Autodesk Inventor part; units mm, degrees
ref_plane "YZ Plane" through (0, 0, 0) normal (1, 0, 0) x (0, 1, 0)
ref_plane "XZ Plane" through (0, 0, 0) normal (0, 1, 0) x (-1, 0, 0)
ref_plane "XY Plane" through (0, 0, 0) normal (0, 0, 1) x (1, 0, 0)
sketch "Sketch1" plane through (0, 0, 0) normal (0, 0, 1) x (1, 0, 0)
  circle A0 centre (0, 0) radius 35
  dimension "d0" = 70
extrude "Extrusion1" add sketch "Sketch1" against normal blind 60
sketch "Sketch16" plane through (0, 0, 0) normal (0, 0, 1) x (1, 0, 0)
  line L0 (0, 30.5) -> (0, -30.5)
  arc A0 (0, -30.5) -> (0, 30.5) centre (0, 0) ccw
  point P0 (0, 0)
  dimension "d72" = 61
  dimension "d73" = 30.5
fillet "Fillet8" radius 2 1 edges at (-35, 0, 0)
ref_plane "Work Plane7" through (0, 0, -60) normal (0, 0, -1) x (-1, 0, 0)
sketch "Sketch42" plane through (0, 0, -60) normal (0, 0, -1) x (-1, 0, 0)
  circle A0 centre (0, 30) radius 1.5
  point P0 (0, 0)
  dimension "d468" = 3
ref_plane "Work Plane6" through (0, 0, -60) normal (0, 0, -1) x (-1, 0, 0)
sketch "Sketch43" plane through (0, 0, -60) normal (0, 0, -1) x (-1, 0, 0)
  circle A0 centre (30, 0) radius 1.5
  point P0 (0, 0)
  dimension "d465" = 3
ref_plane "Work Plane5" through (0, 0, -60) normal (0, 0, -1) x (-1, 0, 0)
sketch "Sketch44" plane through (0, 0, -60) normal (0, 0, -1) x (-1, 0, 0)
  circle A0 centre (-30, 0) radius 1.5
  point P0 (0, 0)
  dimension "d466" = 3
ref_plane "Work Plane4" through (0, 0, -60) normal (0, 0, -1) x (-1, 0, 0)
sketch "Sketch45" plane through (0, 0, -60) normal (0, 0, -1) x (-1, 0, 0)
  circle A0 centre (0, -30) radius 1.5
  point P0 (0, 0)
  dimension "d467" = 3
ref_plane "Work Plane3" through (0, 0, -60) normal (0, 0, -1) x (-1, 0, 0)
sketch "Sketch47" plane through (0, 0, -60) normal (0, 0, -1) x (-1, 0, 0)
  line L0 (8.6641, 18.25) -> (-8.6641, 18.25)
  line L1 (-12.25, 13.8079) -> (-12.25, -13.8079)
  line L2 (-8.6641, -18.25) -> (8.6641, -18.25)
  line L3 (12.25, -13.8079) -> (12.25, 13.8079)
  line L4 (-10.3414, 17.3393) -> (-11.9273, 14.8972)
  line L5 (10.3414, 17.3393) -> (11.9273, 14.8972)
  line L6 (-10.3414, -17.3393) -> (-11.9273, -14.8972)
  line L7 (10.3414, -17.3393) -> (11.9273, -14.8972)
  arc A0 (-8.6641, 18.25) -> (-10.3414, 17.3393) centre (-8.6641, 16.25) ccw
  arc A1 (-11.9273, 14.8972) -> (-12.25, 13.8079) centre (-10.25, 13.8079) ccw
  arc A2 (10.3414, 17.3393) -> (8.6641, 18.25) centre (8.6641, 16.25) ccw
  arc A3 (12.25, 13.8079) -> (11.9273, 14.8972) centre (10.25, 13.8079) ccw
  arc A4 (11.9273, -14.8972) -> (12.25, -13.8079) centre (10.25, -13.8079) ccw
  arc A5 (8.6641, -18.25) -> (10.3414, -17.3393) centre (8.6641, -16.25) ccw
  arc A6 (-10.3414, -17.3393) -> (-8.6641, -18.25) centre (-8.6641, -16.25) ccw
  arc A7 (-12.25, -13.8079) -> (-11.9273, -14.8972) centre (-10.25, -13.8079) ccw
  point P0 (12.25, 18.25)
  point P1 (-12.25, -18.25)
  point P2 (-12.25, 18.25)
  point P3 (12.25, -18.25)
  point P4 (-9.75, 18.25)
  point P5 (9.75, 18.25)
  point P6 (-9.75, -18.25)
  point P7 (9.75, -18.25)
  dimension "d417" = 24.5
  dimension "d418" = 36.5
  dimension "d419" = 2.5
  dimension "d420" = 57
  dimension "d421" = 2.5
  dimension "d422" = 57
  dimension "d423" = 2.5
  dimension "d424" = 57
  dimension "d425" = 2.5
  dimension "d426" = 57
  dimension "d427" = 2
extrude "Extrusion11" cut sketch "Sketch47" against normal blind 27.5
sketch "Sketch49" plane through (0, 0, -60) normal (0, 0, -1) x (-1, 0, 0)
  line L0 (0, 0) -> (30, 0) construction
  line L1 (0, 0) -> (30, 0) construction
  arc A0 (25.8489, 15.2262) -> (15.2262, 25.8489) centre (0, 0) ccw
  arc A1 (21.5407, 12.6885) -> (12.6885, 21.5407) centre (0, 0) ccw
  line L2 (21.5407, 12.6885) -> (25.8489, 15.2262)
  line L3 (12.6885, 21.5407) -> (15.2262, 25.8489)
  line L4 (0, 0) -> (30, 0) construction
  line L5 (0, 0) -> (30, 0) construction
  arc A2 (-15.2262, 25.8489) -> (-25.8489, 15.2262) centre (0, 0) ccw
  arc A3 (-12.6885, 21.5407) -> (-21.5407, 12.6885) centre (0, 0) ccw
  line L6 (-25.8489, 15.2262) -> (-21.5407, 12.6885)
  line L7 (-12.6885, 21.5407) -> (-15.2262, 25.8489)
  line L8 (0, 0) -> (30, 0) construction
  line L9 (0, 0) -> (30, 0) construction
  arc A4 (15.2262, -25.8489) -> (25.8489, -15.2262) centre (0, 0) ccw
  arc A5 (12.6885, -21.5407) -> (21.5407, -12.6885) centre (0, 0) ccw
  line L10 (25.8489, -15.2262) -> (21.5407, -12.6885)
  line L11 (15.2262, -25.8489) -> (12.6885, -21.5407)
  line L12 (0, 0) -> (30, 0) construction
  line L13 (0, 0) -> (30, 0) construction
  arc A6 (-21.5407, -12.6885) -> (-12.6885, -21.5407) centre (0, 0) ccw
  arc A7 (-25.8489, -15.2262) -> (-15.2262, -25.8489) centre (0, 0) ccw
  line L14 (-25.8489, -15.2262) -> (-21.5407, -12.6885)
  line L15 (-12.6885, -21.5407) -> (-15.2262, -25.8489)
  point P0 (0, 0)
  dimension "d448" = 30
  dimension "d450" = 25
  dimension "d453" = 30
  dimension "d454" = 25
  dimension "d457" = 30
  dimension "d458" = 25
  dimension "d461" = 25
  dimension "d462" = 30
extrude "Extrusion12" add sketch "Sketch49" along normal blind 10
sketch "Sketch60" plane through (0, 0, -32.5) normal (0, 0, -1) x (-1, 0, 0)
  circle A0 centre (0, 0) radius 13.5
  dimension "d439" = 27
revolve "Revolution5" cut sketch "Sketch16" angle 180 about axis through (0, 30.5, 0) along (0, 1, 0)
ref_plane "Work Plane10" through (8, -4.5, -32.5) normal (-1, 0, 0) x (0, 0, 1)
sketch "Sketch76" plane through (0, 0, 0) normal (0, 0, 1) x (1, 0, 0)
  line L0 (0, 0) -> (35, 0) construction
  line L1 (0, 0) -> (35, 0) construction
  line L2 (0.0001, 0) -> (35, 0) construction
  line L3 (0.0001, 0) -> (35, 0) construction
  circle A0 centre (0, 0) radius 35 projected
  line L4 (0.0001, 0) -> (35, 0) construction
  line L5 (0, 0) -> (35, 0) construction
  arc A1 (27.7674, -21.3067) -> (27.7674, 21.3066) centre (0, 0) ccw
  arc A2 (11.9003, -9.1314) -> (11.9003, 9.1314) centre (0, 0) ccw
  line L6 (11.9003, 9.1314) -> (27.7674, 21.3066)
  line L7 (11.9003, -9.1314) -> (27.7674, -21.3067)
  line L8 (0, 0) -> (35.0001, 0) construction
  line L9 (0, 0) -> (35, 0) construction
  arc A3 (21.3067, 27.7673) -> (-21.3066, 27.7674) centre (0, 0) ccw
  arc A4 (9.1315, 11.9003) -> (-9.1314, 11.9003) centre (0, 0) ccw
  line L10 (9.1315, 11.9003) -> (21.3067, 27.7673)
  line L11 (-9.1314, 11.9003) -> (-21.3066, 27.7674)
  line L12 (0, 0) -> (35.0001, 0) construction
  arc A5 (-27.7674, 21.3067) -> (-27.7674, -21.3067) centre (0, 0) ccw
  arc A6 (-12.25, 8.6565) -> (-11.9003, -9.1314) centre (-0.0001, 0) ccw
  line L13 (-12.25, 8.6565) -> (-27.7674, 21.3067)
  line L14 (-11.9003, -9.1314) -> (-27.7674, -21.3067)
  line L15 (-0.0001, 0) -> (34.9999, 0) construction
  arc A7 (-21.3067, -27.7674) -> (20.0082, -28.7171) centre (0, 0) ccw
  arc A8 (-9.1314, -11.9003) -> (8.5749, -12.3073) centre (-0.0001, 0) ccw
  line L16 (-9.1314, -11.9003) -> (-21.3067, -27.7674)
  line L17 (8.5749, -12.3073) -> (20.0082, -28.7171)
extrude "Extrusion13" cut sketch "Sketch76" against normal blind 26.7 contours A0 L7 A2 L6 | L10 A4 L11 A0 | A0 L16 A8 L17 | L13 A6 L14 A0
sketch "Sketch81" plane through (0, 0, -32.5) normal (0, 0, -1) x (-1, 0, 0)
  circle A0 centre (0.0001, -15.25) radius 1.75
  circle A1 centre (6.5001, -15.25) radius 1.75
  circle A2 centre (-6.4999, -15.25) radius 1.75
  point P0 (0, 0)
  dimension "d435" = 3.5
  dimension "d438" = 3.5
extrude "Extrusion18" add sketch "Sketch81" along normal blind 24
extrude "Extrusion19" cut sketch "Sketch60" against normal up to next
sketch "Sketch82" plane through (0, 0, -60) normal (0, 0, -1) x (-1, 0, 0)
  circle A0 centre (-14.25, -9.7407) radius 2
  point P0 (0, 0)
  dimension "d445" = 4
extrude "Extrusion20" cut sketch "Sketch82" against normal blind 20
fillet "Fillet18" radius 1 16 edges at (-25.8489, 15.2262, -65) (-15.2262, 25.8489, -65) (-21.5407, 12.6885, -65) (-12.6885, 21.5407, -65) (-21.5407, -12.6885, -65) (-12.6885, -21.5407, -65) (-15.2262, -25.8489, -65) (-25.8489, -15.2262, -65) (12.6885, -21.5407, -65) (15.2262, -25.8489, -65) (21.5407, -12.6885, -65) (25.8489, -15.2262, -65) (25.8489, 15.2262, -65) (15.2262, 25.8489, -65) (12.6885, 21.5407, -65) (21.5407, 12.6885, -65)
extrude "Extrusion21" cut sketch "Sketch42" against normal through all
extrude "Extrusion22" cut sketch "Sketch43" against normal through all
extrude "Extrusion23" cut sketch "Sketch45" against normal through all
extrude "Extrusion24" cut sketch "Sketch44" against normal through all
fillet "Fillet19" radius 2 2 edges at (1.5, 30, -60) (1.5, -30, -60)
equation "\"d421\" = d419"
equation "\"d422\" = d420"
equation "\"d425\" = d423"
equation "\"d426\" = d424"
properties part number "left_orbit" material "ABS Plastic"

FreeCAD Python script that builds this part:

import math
import FreeCAD as App
import Part
import Sketcher

V = App.Vector
Q = App.Units.Quantity


def edges_at(feature, points):
    """Names of the edges that pass closest to the given points."""
    edges = feature.Shape.Edges
    near = lambda p: min(range(len(edges)), key=lambda i: edges[i].distToShape(Part.Vertex(*p))[0])
    return sorted({f"Edge{near(p) + 1}" for p in points})

doc = App.newDocument("Part")
body = doc.addObject("PartDesign::Body", "Body")

sketch1 = body.newObject("Sketcher::SketchObject", "Sketch")
sketch1.AttachmentSupport = (doc.getObject("XY_Plane"), [""])
sketch1.MapMode = "FlatFace"
sketch1.addGeometry(Part.Circle(V(0, 0, 0), V(0, 0, 1), 35), False)
sketch1.addConstraint(Sketcher.Constraint("Coincident", 0, 3, -1, 1))
sketch1.addConstraint(Sketcher.Constraint("Diameter", 0, Q("70 mm")))
pad1 = body.newObject("PartDesign::Pad", "Pad")
pad1.Profile = sketch1
pad1.Length = 60
pad1.Reversed = True
doc.recompute()

fillet = body.newObject("PartDesign::Fillet", "Fillet")
fillet.Base = (pad1, edges_at(pad1, [(-35, 0, 0)]))
fillet.Radius = 2

sketch2 = body.newObject("Sketcher::SketchObject", "Sketch001")
sketch2.AttachmentSupport = (doc.getObject("XY_Plane"), [""])
sketch2.MapMode = "FlatFace"
sketch2.AttachmentOffset = App.Placement(V(0, 0, -60), App.Rotation())
sketch2.addGeometry(Part.ArcOfCircle(Part.Circle(V(-8.7, 16.2, 0), V(0, 0, 1), 2), math.radians(90), math.radians(147)), False)
sketch2.addGeometry(Part.LineSegment(V(-8.7, 18.2, 0), V(8.7, 18.2, 0)), False)
sketch2.addGeometry(Part.ArcOfCircle(Part.Circle(V(8.7, 16.2, 0), V(0, 0, 1), 2), math.radians(33), math.radians(90)), False)
sketch2.addGeometry(Part.LineSegment(V(10.3, 17.3, 0), V(11.9, 14.9, 0)), False)
sketch2.addGeometry(Part.ArcOfCircle(Part.Circle(V(10.2, 13.8, 0), V(0, 0, 1), 2), math.radians(0), math.radians(33)), False)
sketch2.addGeometry(Part.LineSegment(V(12.2, 13.8, 0), V(12.2, -13.8, 0)), False)
sketch2.addGeometry(Part.ArcOfCircle(Part.Circle(V(10.2, -13.8, 0), V(0, 0, 1), 2), math.radians(-33), math.radians(0)), False)
sketch2.addGeometry(Part.LineSegment(V(11.9, -14.9, 0), V(10.3, -17.3, 0)), False)
sketch2.addGeometry(Part.ArcOfCircle(Part.Circle(V(8.7, -16.2, 0), V(0, 0, 1), 2), math.radians(-90), math.radians(-33)), False)
sketch2.addGeometry(Part.LineSegment(V(8.7, -18.2, 0), V(-8.7, -18.2, 0)), False)
sketch2.addGeometry(Part.ArcOfCircle(Part.Circle(V(-8.7, -16.2, 0), V(0, 0, 1), 2), math.radians(-147), math.radians(-90)), False)
sketch2.addGeometry(Part.LineSegment(V(-10.3, -17.3, 0), V(-11.9, -14.9, 0)), False)
sketch2.addGeometry(Part.ArcOfCircle(Part.Circle(V(-10.2, -13.8, 0), V(0, 0, 1), 2), math.radians(180), math.radians(213)), False)
sketch2.addGeometry(Part.LineSegment(V(-12.2, -13.8, 0), V(-12.2, 13.8, 0)), False)
sketch2.addGeometry(Part.ArcOfCircle(Part.Circle(V(-10.2, 13.8, 0), V(0, 0, 1), 2), math.radians(147), math.radians(180)), False)
sketch2.addGeometry(Part.LineSegment(V(-11.9, 14.9, 0), V(-10.3, 17.3, 0)), False)
sketch2.addConstraint(Sketcher.Constraint("Tangent", 0, 1, 1, 1))
sketch2.addConstraint(Sketcher.Constraint("Tangent", 1, 2, 2, 2))
sketch2.addConstraint(Sketcher.Constraint("Tangent", 2, 1, 3, 1))
sketch2.addConstraint(Sketcher.Constraint("Tangent", 3, 2, 4, 2))
sketch2.addConstraint(Sketcher.Constraint("Tangent", 4, 1, 5, 1))
sketch2.addConstraint(Sketcher.Constraint("Tangent", 5, 2, 6, 2))
sketch2.addConstraint(Sketcher.Constraint("Tangent", 6, 1, 7, 1))
sketch2.addConstraint(Sketcher.Constraint("Tangent", 7, 2, 8, 2))
sketch2.addConstraint(Sketcher.Constraint("Tangent", 8, 1, 9, 1))
sketch2.addConstraint(Sketcher.Constraint("Tangent", 9, 2, 10, 2))
sketch2.addConstraint(Sketcher.Constraint("Tangent", 10, 1, 11, 1))
sketch2.addConstraint(Sketcher.Constraint("Tangent", 11, 2, 12, 2))
sketch2.addConstraint(Sketcher.Constraint("Tangent", 12, 1, 13, 1))
sketch2.addConstraint(Sketcher.Constraint("Tangent", 13, 2, 14, 2))
sketch2.addConstraint(Sketcher.Constraint("Tangent", 14, 1, 15, 1))
sketch2.addConstraint(Sketcher.Constraint("Tangent", 15, 2, 0, 2))
sketch2.addConstraint(Sketcher.Constraint("Horizontal", 1))
sketch2.addConstraint(Sketcher.Constraint("Vertical", 5))
sketch2.addConstraint(Sketcher.Constraint("Horizontal", 9))
sketch2.addConstraint(Sketcher.Constraint("Vertical", 13))
sketch2.addConstraint(Sketcher.Constraint("Equal", 0, 2))
sketch2.addConstraint(Sketcher.Constraint("Equal", 2, 4))
sketch2.addConstraint(Sketcher.Constraint("Equal", 4, 6))
sketch2.addConstraint(Sketcher.Constraint("Equal", 6, 8))
sketch2.addConstraint(Sketcher.Constraint("Equal", 8, 10))
sketch2.addConstraint(Sketcher.Constraint("Equal", 10, 12))
sketch2.addConstraint(Sketcher.Constraint("Equal", 12, 14))
sketch2.addConstraint(Sketcher.Constraint("Symmetric", 0, 3, 8, 3, -1, 1))
sketch2.addConstraint(Sketcher.Constraint("Symmetric", 4, 3, 12, 3, -1, 1))
sketch2.addConstraint(Sketcher.Constraint("Symmetric", 7, 2, 10, 1, -2))
sketch2.addConstraint(Sketcher.Constraint("Symmetric", 3, 2, 14, 1, -2))
sketch2.addConstraint(Sketcher.Constraint("Radius", 0, Q("2 mm")))
sketch2.addConstraint(Sketcher.Constraint("Angle", 3, Q("-57.0003 deg")))
sketch2.addConstraint(Sketcher.Constraint("DistanceY", 8, 3, 2, 3, Q("32.5 mm")))
sketch2.addConstraint(Sketcher.Constraint("DistanceX", 12, 3, 6, 3, Q("20.5 mm")))
sketch2.addConstraint(Sketcher.Constraint("DistanceX", 1, 1, 1, 2, Q("17.3282 mm")))
pocket1 = body.newObject("PartDesign::Pocket", "Pocket")
pocket1.Profile = sketch2
pocket1.Length = 27.5
pocket1.Reversed = True

sketch3 = body.newObject("Sketcher::SketchObject", "Sketch002")
sketch3.AttachmentSupport = (doc.getObject("XY_Plane"), [""])
sketch3.MapMode = "FlatFace"
sketch3.AttachmentOffset = App.Placement(V(0, 0, -60), App.Rotation())
sketch3.addGeometry(Part.LineSegment(V(-22, 13, 0), V(-26, 15, 0)), False)
sketch3.addGeometry(Part.ArcOfCircle(Part.Circle(V(0, 0, 0), V(0, 0, 1), 30), math.radians(121), math.radians(149)), False)
sketch3.addGeometry(Part.LineSegment(V(-15, 26, 0), V(-13, 22, 0)), False)
sketch3.addGeometry(Part.ArcOfCircle(Part.Circle(V(0, 0, 0), V(0, 0, 1), 25), math.radians(121), math.radians(149)), False)
sketch3.addGeometry(Part.LineSegment(V(13, 22, 0), V(15, 26, 0)), False)
sketch3.addGeometry(Part.ArcOfCircle(Part.Circle(V(0, 0, 0), V(0, 0, 1), 30), math.radians(31), math.radians(59)), False)
sketch3.addGeometry(Part.LineSegment(V(26, 15, 0), V(22, 13, 0)), False)
sketch3.addGeometry(Part.ArcOfCircle(Part.Circle(V(0, 0, 0), V(0, 0, 1), 25), math.radians(31), math.radians(59)), False)
sketch3.addGeometry(Part.LineSegment(V(-13, -22, 0), V(-15, -26, 0)), False)
sketch3.addGeometry(Part.ArcOfCircle(Part.Circle(V(0, 0, 0), V(0, 0, 1), 30), math.radians(-149), math.radians(-121)), False)
sketch3.addGeometry(Part.LineSegment(V(-26, -15, 0), V(-22, -13, 0)), False)
sketch3.addGeometry(Part.ArcOfCircle(Part.Circle(V(0, 0, 0), V(0, 0, 1), 25), math.radians(-149), math.radians(-121)), False)
sketch3.addGeometry(Part.ArcOfCircle(Part.Circle(V(0, 0, 0), V(0, 0, 1), 25), math.radians(-59), math.radians(-31)), False)
sketch3.addGeometry(Part.LineSegment(V(22, -13, 0), V(26, -15, 0)), False)
sketch3.addGeometry(Part.ArcOfCircle(Part.Circle(V(0, 0, 0), V(0, 0, 1), 30), math.radians(-59), math.radians(-31)), False)
sketch3.addGeometry(Part.LineSegment(V(15, -26, 0), V(13, -22, 0)), False)
sketch3.addConstraint(Sketcher.Constraint("Coincident", 0, 2, 1, 2))
sketch3.addConstraint(Sketcher.Constraint("Coincident", 1, 1, 2, 1))
sketch3.addConstraint(Sketcher.Constraint("Coincident", 2, 2, 3, 1))
sketch3.addConstraint(Sketcher.Constraint("Coincident", 3, 2, 0, 1))
sketch3.addConstraint(Sketcher.Constraint("Coincident", 4, 2, 5, 2))
sketch3.addConstraint(Sketcher.Constraint("Coincident", 5, 1, 6, 1))
sketch3.addConstraint(Sketcher.Constraint("Coincident", 6, 2, 7, 1))
sketch3.addConstraint(Sketcher.Constraint("Coincident", 7, 2, 4, 1))
sketch3.addConstraint(Sketcher.Constraint("Coincident", 8, 2, 9, 2))
sketch3.addConstraint(Sketcher.Constraint("Coincident", 9, 1, 10, 1))
sketch3.addConstraint(Sketcher.Constraint("Coincident", 10, 2, 11, 1))
sketch3.addConstraint(Sketcher.Constraint("Coincident", 11, 2, 8, 1))
sketch3.addConstraint(Sketcher.Constraint("Coincident", 12, 2, 13, 1))
sketch3.addConstraint(Sketcher.Constraint("Coincident", 13, 2, 14, 2))
sketch3.addConstraint(Sketcher.Constraint("Coincident", 14, 1, 15, 1))
sketch3.addConstraint(Sketcher.Constraint("Coincident", 15, 2, 12, 1))
sketch3.addConstraint(Sketcher.Constraint("Coincident", 1, 3, -1, 1))
sketch3.addConstraint(Sketcher.Constraint("Coincident", 3, 3, -1, 1))
sketch3.addConstraint(Sketcher.Constraint("Coincident", 5, 3, -1, 1))
sketch3.addConstraint(Sketcher.Constraint("Coincident", 7, 3, -1, 1))
sketch3.addConstraint(Sketcher.Constraint("Coincident", 9, 3, -1, 1))
sketch3.addConstraint(Sketcher.Constraint("Coincident", 11, 3, -1, 1))
sketch3.addConstraint(Sketcher.Constraint("Coincident", 12, 3, -1, 1))
sketch3.addConstraint(Sketcher.Constraint("Coincident", 14, 3, -1, 1))
sketch3.addConstraint(Sketcher.Constraint("Equal", 1, 5))
sketch3.addConstraint(Sketcher.Constraint("Equal", 3, 7))
sketch3.addConstraint(Sketcher.Constraint("Equal", 5, 9))
sketch3.addConstraint(Sketcher.Constraint("Equal", 7, 11))
sketch3.addConstraint(Sketcher.Constraint("Equal", 11, 12))
sketch3.addConstraint(Sketcher.Constraint("Equal", 9, 14))
sketch3.addConstraint(Sketcher.Constraint("Perpendicular", 0, 4))
sketch3.addConstraint(Sketcher.Constraint("Perpendicular", 2, 6))
sketch3.addConstraint(Sketcher.Constraint("Parallel", 4, 8))
sketch3.addConstraint(Sketcher.Constraint("Parallel", 6, 10))
sketch3.addConstraint(Sketcher.Constraint("Perpendicular", 8, 13))
sketch3.addConstraint(Sketcher.Constraint("Perpendicular", 10, 15))
sketch3.addConstraint(Sketcher.Constraint("Horizontal", 1, 1, 4, 2))
sketch3.addConstraint(Sketcher.Constraint("Horizontal", 0, 2, 5, 1))
sketch3.addConstraint(Sketcher.Constraint("Horizontal", 3, 2, 6, 2))
sketch3.addConstraint(Sketcher.Constraint("Horizontal", 10, 2, 12, 2))
sketch3.addConstraint(Sketcher.Constraint("Horizontal", 8, 2, 14, 1))
sketch3.addConstraint(Sketcher.Constraint("Vertical", 1, 1, 8, 2))
sketch3.addConstraint(Sketcher.Constraint("Vertical", 0, 2, 9, 1))
sketch3.addConstraint(Sketcher.Constraint("Radius", 1, Q("30 mm")))
sketch3.addConstraint(Sketcher.Constraint("Radius", 3, Q("25 mm")))
sketch3.addConstraint(Sketcher.Constraint("Angle", 0, Q("149.5002 deg")))
sketch3.addConstraint(Sketcher.Constraint("DistanceX", 0, 2, -1, 1, Q("25.849 mm")))
sketch3.addConstraint(Sketcher.Constraint("DistanceY", -1, 1, 1, 1, Q("25.849 mm")))
pad2 = body.newObject("PartDesign::Pad", "Pad001")
pad2.Profile = sketch3
pad2.Length = 10
pad2.Reversed = True

sketch4 = body.newObject("Sketcher::SketchObject", "Sketch003")
sketch4.AttachmentSupport = (doc.getObject("XY_Plane"), [""])
sketch4.MapMode = "FlatFace"
sketch4.addGeometry(Part.ArcOfCircle(Part.Circle(V(0, 0, 0), V(0, 0, 1), 30), math.radians(-90), math.radians(90)), False)
sketch4.addGeometry(Part.LineSegment(V(0, 30, 0), V(0, -30, 0)), False)
sketch4.addConstraint(Sketcher.Constraint("Coincident", 0, 1, 1, 2))
sketch4.addConstraint(Sketcher.Constraint("Coincident", 1, 1, 0, 2))
sketch4.addConstraint(Sketcher.Constraint("Vertical", 1))
sketch4.addConstraint(Sketcher.Constraint("Coincident", 0, 3, -1, 1))
sketch4.addConstraint(Sketcher.Constraint("PointOnObject", 0, 1, -2))
sketch4.addConstraint(Sketcher.Constraint("Radius", 0, Q("30.5 mm")))
groove = body.newObject("PartDesign::Groove", "Groove")
groove.Profile = sketch4
groove.ReferenceAxis = (sketch4, ["V_Axis"])
groove.Angle = 180

sketch5 = body.newObject("Sketcher::SketchObject", "Sketch004")
sketch5.AttachmentSupport = (doc.getObject("XY_Plane"), [""])
sketch5.MapMode = "FlatFace"
sketch5.addGeometry(Part.ArcOfCircle(Part.Circle(V(0, 0, 0), V(0, 0, 1), 35), math.radians(-38), math.radians(37)), False)
sketch5.addGeometry(Part.LineSegment(V(28, 21, 0), V(12, 9, 0)), False)
sketch5.addGeometry(Part.ArcOfCircle(Part.Circle(V(0, 0, 0), V(0, 0, 1), 15), math.radians(-37), math.radians(37)), False)
sketch5.addGeometry(Part.LineSegment(V(12, -9, 0), V(28, -21, 0)), False)
sketch5.addGeometry(Part.LineSegment(V(9, 12, 0), V(21, 28, 0)), False)
sketch5.addGeometry(Part.ArcOfCircle(Part.Circle(V(0, 0, 0), V(0, 0, 1), 35), math.radians(52), math.radians(127)), False)
sketch5.addGeometry(Part.LineSegment(V(-21, 28, 0), V(-9, 12, 0)), False)
sketch5.addGeometry(Part.ArcOfCircle(Part.Circle(V(0, 0, 0), V(0, 0, 1), 15), math.radians(52), math.radians(127)), False)
sketch5.addGeometry(Part.ArcOfCircle(Part.Circle(V(0, 0, 0), V(0, 0, 1), 35), math.radians(-128), math.radians(-55)), False)
sketch5.addGeometry(Part.LineSegment(V(20, -29, 0), V(9, -12, 0)), False)
sketch5.addGeometry(Part.ArcOfCircle(Part.Circle(V(0, 0, 0), V(0, 0, 1), 15), math.radians(-127), math.radians(-55)), False)
sketch5.addGeometry(Part.LineSegment(V(-9, -12, 0), V(-21, -28, 0)), False)
sketch5.addGeometry(Part.LineSegment(V(-12, 9, 0), V(-28, 21, 0)), False)
sketch5.addGeometry(Part.ArcOfCircle(Part.Circle(V(0, 0, 0), V(0, 0, 1), 35), math.radians(142), math.radians(218)), False)
sketch5.addGeometry(Part.LineSegment(V(-28, -21, 0), V(-12, -9, 0)), False)
sketch5.addGeometry(Part.ArcOfCircle(Part.Circle(V(0, 0, 0), V(0, 0, 1), 15), math.radians(145), math.radians(217)), False)
sketch5.addConstraint(Sketcher.Constraint("Coincident", 0, 2, 1, 1))
sketch5.addConstraint(Sketcher.Constraint("Coincident", 1, 2, 2, 2))
sketch5.addConstraint(Sketcher.Constraint("Coincident", 2, 1, 3, 1))
sketch5.addConstraint(Sketcher.Constraint("Coincident", 3, 2, 0, 1))
sketch5.addConstraint(Sketcher.Constraint("Coincident", 4, 2, 5, 1))
sketch5.addConstraint(Sketcher.Constraint("Coincident", 5, 2, 6, 1))
sketch5.addConstraint(Sketcher.Constraint("Coincident", 6, 2, 7, 2))
sketch5.addConstraint(Sketcher.Constraint("Coincident", 7, 1, 4, 1))
sketch5.addConstraint(Sketcher.Constraint("Coincident", 8, 2, 9, 1))
sketch5.addConstraint(Sketcher.Constraint("Coincident", 9, 2, 10, 2))
sketch5.addConstraint(Sketcher.Constraint("Coincident", 10, 1, 11, 1))
sketch5.addConstraint(Sketcher.Constraint("Coincident", 11, 2, 8, 1))
sketch5.addConstraint(Sketcher.Constraint("Coincident", 12, 2, 13, 1))
sketch5.addConstraint(Sketcher.Constraint("Coincident", 13, 2, 14, 1))
sketch5.addConstraint(Sketcher.Constraint("Coincident", 14, 2, 15, 2))
sketch5.addConstraint(Sketcher.Constraint("Coincident", 15, 1, 12, 1))
sketch5.addConstraint(Sketcher.Constraint("Coincident", 0, 3, -1, 1))
sketch5.addConstraint(Sketcher.Constraint("Coincident", 2, 3, -1, 1))
sketch5.addConstraint(Sketcher.Constraint("Coincident", 5, 3, -1, 1))
sketch5.addConstraint(Sketcher.Constraint("Coincident", 7, 3, -1, 1))
sketch5.addConstraint(Sketcher.Constraint("Coincident", 8, 3, -1, 1))
sketch5.addConstraint(Sketcher.Constraint("Coincident", 10, 3, -1, 1))
sketch5.addConstraint(Sketcher.Constraint("Coincident", 13, 3, -1, 1))
sketch5.addConstraint(Sketcher.Constraint("Coincident", 15, 3, -1, 1))
sketch5.addConstraint(Sketcher.Constraint("Equal", 0, 5))
sketch5.addConstraint(Sketcher.Constraint("Equal", 2, 7))
sketch5.addConstraint(Sketcher.Constraint("Equal", 5, 8))
sketch5.addConstraint(Sketcher.Constraint("Equal", 7, 10))
sketch5.addConstraint(Sketcher.Constraint("Equal", 8, 13))
sketch5.addConstraint(Sketcher.Constraint("Equal", 10, 15))
sketch5.addConstraint(Sketcher.Constraint("Perpendicular", 3, 4))
sketch5.addConstraint(Sketcher.Constraint("Perpendicular", 1, 6))
sketch5.addConstraint(Sketcher.Constraint("Parallel", 4, 11))
sketch5.addConstraint(Sketcher.Constraint("Perpendicular", 6, 14))
sketch5.addConstraint(Sketcher.Constraint("Horizontal", 4, 2, 5, 2))
sketch5.addConstraint(Sketcher.Constraint("Horizontal", 6, 2, 7, 1))
sketch5.addConstraint(Sketcher.Constraint("Horizontal", 0, 2, 12, 2))
sketch5.addConstraint(Sketcher.Constraint("Horizontal", 3, 2, 13, 2))
sketch5.addConstraint(Sketcher.Constraint("Vertical", 1, 2, 2, 1))
sketch5.addConstraint(Sketcher.Constraint("Vertical", 6, 2, 10, 1))
sketch5.addConstraint(Sketcher.Constraint("Radius", 0, Q("35 mm")))
sketch5.addConstraint(Sketcher.Constraint("Radius", 2, Q("15 mm")))
sketch5.addConstraint(Sketcher.Constraint("Angle", 1, Q("-142.5001 deg")))
sketch5.addConstraint(Sketcher.Constraint("DistanceX", 15, 1, -1, 1, Q("12.25 mm")))
sketch5.addConstraint(Sketcher.Constraint("DistanceY", 11, 2, 9, 2, Q("15.46 mm")))
sketch5.addConstraint(Sketcher.Constraint("DistanceY", 8, 2, -1, 1, Q("28.717 mm")))
sketch5.addConstraint(Sketcher.Constraint("DistanceX", -1, 1, 9, 2, Q("8.575 mm")))
sketch5.addConstraint(Sketcher.Constraint("DistanceY", 3, 2, 1, 2, Q("30.438 mm")))
pocket2 = body.newObject("PartDesign::Pocket", "Pocket001")
pocket2.Profile = sketch5
pocket2.Length = 26.7

sketch6 = body.newObject("Sketcher::SketchObject", "Sketch005")
sketch6.AttachmentSupport = (doc.getObject("XY_Plane"), [""])
sketch6.MapMode = "FlatFace"
sketch6.AttachmentOffset = App.Placement(V(0, 0, -32.5), App.Rotation())
sketch6.addGeometry(Part.Circle(V(0, -15.2, 0), V(0, 0, 1), 1.8), False)
sketch6.addGeometry(Part.Circle(V(-6.5, -15.2, 0), V(0, 0, 1), 1.8), False)
sketch6.addGeometry(Part.Circle(V(6.5, -15.2, 0), V(0, 0, 1), 1.8), False)
sketch6.addConstraint(Sketcher.Constraint("Equal", 0, 1))
sketch6.addConstraint(Sketcher.Constraint("Equal", 1, 2))
sketch6.addConstraint(Sketcher.Constraint("Symmetric", 1, 3, 2, 3, -2))
sketch6.addConstraint(Sketcher.Constraint("PointOnObject", 0, 3, -2))
sketch6.addConstraint(Sketcher.Constraint("Horizontal", 0, 3, 1, 3))
sketch6.addConstraint(Sketcher.Constraint("Diameter", 0, Q("3.5 mm")))
sketch6.addConstraint(Sketcher.Constraint("DistanceX", 1, 3, 2, 3, Q("13 mm")))
sketch6.addConstraint(Sketcher.Constraint("DistanceY", 0, 3, -1, 1, Q("15.25 mm")))
pad3 = body.newObject("PartDesign::Pad", "Pad002")
pad3.Profile = sketch6
pad3.Length = 24
pad3.Reversed = True

sketch7 = body.newObject("Sketcher::SketchObject", "Sketch006")
sketch7.AttachmentSupport = (doc.getObject("XY_Plane"), [""])
sketch7.MapMode = "FlatFace"
sketch7.AttachmentOffset = App.Placement(V(0, 0, -32.5), App.Rotation())
sketch7.addGeometry(Part.Circle(V(0, 0, 0), V(0, 0, 1), 14), False)
sketch7.addConstraint(Sketcher.Constraint("Coincident", 0, 3, -1, 1))
sketch7.addConstraint(Sketcher.Constraint("Diameter", 0, Q("27 mm")))
pocket3 = body.newObject("PartDesign::Pocket", "Pocket002")
pocket3.Profile = sketch7
pocket3.Type = "UpToFirst"
pocket3.Reversed = True

sketch8 = body.newObject("Sketcher::SketchObject", "Sketch007")
sketch8.AttachmentSupport = (doc.getObject("XY_Plane"), [""])
sketch8.MapMode = "FlatFace"
sketch8.AttachmentOffset = App.Placement(V(0, 0, -60), App.Rotation())
sketch8.addGeometry(Part.Circle(V(14.2, -9.7, 0), V(0, 0, 1), 2), False)
sketch8.addConstraint(Sketcher.Constraint("Diameter", 0, Q("4 mm")))
sketch8.addConstraint(Sketcher.Constraint("DistanceX", -1, 1, 0, 3, Q("14.25 mm")))
sketch8.addConstraint(Sketcher.Constraint("DistanceY", 0, 3, -1, 1, Q("9.7407 mm")))
pocket4 = body.newObject("PartDesign::Pocket", "Pocket003")
pocket4.Profile = sketch8
pocket4.Length = 20
pocket4.Reversed = True
doc.recompute()

fillet2 = body.newObject("PartDesign::Fillet", "Fillet001")
fillet2.Base = (pocket4, edges_at(pocket4, [
    (-25.849, 15.226, -65),
    (-15.226, 25.849, -65),
    (-21.541, 12.688, -65),
    (-12.688, 21.541, -65),
    (-21.541, -12.688, -65),
    (-12.688, -21.541, -65),
    (-15.226, -25.849, -65),
    (-25.849, -15.226, -65),
    (12.688, -21.541, -65),
    (15.226, -25.849, -65),
    (21.541, -12.688, -65),
    (25.849, -15.226, -65),
    (25.849, 15.226, -65),
    (15.226, 25.849, -65),
    (12.688, 21.541, -65),
    (21.541, 12.688, -65),
]))
fillet2.Radius = 1

sketch9 = body.newObject("Sketcher::SketchObject", "Sketch008")
sketch9.AttachmentSupport = (doc.getObject("XY_Plane"), [""])
sketch9.MapMode = "FlatFace"
sketch9.AttachmentOffset = App.Placement(V(0, 0, -60), App.Rotation())
sketch9.addGeometry(Part.Circle(V(0, 30, 0), V(0, 0, 1), 1.5), False)
sketch9.addConstraint(Sketcher.Constraint("PointOnObject", 0, 3, -2))
sketch9.addConstraint(Sketcher.Constraint("Diameter", 0, Q("3 mm")))
sketch9.addConstraint(Sketcher.Constraint("DistanceY", -1, 1, 0, 3, Q("30 mm")))
pocket5 = body.newObject("PartDesign::Pocket", "Pocket004")
pocket5.Profile = sketch9
pocket5.Type = "ThroughAll"
pocket5.Reversed = True

sketch10 = body.newObject("Sketcher::SketchObject", "Sketch009")
sketch10.AttachmentSupport = (doc.getObject("XY_Plane"), [""])
sketch10.MapMode = "FlatFace"
sketch10.AttachmentOffset = App.Placement(V(0, 0, -60), App.Rotation())
sketch10.addGeometry(Part.Circle(V(-30, 0, 0), V(0, 0, 1), 1.5), False)
sketch10.addConstraint(Sketcher.Constraint("PointOnObject", 0, 3, -1))
sketch10.addConstraint(Sketcher.Constraint("Diameter", 0, Q("3 mm")))
sketch10.addConstraint(Sketcher.Constraint("DistanceX", 0, 3, -1, 1, Q("30 mm")))
pocket6 = body.newObject("PartDesign::Pocket", "Pocket005")
pocket6.Profile = sketch10
pocket6.Type = "ThroughAll"
pocket6.Reversed = True

sketch11 = body.newObject("Sketcher::SketchObject", "Sketch010")
sketch11.AttachmentSupport = (doc.getObject("XY_Plane"), [""])
sketch11.MapMode = "FlatFace"
sketch11.AttachmentOffset = App.Placement(V(0, 0, -60), App.Rotation())
sketch11.addGeometry(Part.Circle(V(0, -30, 0), V(0, 0, 1), 1.5), False)
sketch11.addConstraint(Sketcher.Constraint("PointOnObject", 0, 3, -2))
sketch11.addConstraint(Sketcher.Constraint("Diameter", 0, Q("3 mm")))
sketch11.addConstraint(Sketcher.Constraint("DistanceY", 0, 3, -1, 1, Q("30 mm")))
pocket7 = body.newObject("PartDesign::Pocket", "Pocket006")
pocket7.Profile = sketch11
pocket7.Type = "ThroughAll"
pocket7.Reversed = True

sketch12 = body.newObject("Sketcher::SketchObject", "Sketch011")
sketch12.AttachmentSupport = (doc.getObject("XY_Plane"), [""])
sketch12.MapMode = "FlatFace"
sketch12.AttachmentOffset = App.Placement(V(0, 0, -60), App.Rotation())
sketch12.addGeometry(Part.Circle(V(30, 0, 0), V(0, 0, 1), 1.5), False)
sketch12.addConstraint(Sketcher.Constraint("PointOnObject", 0, 3, -1))
sketch12.addConstraint(Sketcher.Constraint("Diameter", 0, Q("3 mm")))
sketch12.addConstraint(Sketcher.Constraint("DistanceX", -1, 1, 0, 3, Q("30 mm")))
pocket8 = body.newObject("PartDesign::Pocket", "Pocket007")
pocket8.Profile = sketch12
pocket8.Type = "ThroughAll"
pocket8.Reversed = True
doc.recompute()

fillet3 = body.newObject("PartDesign::Fillet", "Fillet002")
fillet3.Base = (pocket8, edges_at(pocket8, [(1.5, 30, -60), (1.5, -30, -60)]))
fillet3.Radius = 2

doc.recompute()
